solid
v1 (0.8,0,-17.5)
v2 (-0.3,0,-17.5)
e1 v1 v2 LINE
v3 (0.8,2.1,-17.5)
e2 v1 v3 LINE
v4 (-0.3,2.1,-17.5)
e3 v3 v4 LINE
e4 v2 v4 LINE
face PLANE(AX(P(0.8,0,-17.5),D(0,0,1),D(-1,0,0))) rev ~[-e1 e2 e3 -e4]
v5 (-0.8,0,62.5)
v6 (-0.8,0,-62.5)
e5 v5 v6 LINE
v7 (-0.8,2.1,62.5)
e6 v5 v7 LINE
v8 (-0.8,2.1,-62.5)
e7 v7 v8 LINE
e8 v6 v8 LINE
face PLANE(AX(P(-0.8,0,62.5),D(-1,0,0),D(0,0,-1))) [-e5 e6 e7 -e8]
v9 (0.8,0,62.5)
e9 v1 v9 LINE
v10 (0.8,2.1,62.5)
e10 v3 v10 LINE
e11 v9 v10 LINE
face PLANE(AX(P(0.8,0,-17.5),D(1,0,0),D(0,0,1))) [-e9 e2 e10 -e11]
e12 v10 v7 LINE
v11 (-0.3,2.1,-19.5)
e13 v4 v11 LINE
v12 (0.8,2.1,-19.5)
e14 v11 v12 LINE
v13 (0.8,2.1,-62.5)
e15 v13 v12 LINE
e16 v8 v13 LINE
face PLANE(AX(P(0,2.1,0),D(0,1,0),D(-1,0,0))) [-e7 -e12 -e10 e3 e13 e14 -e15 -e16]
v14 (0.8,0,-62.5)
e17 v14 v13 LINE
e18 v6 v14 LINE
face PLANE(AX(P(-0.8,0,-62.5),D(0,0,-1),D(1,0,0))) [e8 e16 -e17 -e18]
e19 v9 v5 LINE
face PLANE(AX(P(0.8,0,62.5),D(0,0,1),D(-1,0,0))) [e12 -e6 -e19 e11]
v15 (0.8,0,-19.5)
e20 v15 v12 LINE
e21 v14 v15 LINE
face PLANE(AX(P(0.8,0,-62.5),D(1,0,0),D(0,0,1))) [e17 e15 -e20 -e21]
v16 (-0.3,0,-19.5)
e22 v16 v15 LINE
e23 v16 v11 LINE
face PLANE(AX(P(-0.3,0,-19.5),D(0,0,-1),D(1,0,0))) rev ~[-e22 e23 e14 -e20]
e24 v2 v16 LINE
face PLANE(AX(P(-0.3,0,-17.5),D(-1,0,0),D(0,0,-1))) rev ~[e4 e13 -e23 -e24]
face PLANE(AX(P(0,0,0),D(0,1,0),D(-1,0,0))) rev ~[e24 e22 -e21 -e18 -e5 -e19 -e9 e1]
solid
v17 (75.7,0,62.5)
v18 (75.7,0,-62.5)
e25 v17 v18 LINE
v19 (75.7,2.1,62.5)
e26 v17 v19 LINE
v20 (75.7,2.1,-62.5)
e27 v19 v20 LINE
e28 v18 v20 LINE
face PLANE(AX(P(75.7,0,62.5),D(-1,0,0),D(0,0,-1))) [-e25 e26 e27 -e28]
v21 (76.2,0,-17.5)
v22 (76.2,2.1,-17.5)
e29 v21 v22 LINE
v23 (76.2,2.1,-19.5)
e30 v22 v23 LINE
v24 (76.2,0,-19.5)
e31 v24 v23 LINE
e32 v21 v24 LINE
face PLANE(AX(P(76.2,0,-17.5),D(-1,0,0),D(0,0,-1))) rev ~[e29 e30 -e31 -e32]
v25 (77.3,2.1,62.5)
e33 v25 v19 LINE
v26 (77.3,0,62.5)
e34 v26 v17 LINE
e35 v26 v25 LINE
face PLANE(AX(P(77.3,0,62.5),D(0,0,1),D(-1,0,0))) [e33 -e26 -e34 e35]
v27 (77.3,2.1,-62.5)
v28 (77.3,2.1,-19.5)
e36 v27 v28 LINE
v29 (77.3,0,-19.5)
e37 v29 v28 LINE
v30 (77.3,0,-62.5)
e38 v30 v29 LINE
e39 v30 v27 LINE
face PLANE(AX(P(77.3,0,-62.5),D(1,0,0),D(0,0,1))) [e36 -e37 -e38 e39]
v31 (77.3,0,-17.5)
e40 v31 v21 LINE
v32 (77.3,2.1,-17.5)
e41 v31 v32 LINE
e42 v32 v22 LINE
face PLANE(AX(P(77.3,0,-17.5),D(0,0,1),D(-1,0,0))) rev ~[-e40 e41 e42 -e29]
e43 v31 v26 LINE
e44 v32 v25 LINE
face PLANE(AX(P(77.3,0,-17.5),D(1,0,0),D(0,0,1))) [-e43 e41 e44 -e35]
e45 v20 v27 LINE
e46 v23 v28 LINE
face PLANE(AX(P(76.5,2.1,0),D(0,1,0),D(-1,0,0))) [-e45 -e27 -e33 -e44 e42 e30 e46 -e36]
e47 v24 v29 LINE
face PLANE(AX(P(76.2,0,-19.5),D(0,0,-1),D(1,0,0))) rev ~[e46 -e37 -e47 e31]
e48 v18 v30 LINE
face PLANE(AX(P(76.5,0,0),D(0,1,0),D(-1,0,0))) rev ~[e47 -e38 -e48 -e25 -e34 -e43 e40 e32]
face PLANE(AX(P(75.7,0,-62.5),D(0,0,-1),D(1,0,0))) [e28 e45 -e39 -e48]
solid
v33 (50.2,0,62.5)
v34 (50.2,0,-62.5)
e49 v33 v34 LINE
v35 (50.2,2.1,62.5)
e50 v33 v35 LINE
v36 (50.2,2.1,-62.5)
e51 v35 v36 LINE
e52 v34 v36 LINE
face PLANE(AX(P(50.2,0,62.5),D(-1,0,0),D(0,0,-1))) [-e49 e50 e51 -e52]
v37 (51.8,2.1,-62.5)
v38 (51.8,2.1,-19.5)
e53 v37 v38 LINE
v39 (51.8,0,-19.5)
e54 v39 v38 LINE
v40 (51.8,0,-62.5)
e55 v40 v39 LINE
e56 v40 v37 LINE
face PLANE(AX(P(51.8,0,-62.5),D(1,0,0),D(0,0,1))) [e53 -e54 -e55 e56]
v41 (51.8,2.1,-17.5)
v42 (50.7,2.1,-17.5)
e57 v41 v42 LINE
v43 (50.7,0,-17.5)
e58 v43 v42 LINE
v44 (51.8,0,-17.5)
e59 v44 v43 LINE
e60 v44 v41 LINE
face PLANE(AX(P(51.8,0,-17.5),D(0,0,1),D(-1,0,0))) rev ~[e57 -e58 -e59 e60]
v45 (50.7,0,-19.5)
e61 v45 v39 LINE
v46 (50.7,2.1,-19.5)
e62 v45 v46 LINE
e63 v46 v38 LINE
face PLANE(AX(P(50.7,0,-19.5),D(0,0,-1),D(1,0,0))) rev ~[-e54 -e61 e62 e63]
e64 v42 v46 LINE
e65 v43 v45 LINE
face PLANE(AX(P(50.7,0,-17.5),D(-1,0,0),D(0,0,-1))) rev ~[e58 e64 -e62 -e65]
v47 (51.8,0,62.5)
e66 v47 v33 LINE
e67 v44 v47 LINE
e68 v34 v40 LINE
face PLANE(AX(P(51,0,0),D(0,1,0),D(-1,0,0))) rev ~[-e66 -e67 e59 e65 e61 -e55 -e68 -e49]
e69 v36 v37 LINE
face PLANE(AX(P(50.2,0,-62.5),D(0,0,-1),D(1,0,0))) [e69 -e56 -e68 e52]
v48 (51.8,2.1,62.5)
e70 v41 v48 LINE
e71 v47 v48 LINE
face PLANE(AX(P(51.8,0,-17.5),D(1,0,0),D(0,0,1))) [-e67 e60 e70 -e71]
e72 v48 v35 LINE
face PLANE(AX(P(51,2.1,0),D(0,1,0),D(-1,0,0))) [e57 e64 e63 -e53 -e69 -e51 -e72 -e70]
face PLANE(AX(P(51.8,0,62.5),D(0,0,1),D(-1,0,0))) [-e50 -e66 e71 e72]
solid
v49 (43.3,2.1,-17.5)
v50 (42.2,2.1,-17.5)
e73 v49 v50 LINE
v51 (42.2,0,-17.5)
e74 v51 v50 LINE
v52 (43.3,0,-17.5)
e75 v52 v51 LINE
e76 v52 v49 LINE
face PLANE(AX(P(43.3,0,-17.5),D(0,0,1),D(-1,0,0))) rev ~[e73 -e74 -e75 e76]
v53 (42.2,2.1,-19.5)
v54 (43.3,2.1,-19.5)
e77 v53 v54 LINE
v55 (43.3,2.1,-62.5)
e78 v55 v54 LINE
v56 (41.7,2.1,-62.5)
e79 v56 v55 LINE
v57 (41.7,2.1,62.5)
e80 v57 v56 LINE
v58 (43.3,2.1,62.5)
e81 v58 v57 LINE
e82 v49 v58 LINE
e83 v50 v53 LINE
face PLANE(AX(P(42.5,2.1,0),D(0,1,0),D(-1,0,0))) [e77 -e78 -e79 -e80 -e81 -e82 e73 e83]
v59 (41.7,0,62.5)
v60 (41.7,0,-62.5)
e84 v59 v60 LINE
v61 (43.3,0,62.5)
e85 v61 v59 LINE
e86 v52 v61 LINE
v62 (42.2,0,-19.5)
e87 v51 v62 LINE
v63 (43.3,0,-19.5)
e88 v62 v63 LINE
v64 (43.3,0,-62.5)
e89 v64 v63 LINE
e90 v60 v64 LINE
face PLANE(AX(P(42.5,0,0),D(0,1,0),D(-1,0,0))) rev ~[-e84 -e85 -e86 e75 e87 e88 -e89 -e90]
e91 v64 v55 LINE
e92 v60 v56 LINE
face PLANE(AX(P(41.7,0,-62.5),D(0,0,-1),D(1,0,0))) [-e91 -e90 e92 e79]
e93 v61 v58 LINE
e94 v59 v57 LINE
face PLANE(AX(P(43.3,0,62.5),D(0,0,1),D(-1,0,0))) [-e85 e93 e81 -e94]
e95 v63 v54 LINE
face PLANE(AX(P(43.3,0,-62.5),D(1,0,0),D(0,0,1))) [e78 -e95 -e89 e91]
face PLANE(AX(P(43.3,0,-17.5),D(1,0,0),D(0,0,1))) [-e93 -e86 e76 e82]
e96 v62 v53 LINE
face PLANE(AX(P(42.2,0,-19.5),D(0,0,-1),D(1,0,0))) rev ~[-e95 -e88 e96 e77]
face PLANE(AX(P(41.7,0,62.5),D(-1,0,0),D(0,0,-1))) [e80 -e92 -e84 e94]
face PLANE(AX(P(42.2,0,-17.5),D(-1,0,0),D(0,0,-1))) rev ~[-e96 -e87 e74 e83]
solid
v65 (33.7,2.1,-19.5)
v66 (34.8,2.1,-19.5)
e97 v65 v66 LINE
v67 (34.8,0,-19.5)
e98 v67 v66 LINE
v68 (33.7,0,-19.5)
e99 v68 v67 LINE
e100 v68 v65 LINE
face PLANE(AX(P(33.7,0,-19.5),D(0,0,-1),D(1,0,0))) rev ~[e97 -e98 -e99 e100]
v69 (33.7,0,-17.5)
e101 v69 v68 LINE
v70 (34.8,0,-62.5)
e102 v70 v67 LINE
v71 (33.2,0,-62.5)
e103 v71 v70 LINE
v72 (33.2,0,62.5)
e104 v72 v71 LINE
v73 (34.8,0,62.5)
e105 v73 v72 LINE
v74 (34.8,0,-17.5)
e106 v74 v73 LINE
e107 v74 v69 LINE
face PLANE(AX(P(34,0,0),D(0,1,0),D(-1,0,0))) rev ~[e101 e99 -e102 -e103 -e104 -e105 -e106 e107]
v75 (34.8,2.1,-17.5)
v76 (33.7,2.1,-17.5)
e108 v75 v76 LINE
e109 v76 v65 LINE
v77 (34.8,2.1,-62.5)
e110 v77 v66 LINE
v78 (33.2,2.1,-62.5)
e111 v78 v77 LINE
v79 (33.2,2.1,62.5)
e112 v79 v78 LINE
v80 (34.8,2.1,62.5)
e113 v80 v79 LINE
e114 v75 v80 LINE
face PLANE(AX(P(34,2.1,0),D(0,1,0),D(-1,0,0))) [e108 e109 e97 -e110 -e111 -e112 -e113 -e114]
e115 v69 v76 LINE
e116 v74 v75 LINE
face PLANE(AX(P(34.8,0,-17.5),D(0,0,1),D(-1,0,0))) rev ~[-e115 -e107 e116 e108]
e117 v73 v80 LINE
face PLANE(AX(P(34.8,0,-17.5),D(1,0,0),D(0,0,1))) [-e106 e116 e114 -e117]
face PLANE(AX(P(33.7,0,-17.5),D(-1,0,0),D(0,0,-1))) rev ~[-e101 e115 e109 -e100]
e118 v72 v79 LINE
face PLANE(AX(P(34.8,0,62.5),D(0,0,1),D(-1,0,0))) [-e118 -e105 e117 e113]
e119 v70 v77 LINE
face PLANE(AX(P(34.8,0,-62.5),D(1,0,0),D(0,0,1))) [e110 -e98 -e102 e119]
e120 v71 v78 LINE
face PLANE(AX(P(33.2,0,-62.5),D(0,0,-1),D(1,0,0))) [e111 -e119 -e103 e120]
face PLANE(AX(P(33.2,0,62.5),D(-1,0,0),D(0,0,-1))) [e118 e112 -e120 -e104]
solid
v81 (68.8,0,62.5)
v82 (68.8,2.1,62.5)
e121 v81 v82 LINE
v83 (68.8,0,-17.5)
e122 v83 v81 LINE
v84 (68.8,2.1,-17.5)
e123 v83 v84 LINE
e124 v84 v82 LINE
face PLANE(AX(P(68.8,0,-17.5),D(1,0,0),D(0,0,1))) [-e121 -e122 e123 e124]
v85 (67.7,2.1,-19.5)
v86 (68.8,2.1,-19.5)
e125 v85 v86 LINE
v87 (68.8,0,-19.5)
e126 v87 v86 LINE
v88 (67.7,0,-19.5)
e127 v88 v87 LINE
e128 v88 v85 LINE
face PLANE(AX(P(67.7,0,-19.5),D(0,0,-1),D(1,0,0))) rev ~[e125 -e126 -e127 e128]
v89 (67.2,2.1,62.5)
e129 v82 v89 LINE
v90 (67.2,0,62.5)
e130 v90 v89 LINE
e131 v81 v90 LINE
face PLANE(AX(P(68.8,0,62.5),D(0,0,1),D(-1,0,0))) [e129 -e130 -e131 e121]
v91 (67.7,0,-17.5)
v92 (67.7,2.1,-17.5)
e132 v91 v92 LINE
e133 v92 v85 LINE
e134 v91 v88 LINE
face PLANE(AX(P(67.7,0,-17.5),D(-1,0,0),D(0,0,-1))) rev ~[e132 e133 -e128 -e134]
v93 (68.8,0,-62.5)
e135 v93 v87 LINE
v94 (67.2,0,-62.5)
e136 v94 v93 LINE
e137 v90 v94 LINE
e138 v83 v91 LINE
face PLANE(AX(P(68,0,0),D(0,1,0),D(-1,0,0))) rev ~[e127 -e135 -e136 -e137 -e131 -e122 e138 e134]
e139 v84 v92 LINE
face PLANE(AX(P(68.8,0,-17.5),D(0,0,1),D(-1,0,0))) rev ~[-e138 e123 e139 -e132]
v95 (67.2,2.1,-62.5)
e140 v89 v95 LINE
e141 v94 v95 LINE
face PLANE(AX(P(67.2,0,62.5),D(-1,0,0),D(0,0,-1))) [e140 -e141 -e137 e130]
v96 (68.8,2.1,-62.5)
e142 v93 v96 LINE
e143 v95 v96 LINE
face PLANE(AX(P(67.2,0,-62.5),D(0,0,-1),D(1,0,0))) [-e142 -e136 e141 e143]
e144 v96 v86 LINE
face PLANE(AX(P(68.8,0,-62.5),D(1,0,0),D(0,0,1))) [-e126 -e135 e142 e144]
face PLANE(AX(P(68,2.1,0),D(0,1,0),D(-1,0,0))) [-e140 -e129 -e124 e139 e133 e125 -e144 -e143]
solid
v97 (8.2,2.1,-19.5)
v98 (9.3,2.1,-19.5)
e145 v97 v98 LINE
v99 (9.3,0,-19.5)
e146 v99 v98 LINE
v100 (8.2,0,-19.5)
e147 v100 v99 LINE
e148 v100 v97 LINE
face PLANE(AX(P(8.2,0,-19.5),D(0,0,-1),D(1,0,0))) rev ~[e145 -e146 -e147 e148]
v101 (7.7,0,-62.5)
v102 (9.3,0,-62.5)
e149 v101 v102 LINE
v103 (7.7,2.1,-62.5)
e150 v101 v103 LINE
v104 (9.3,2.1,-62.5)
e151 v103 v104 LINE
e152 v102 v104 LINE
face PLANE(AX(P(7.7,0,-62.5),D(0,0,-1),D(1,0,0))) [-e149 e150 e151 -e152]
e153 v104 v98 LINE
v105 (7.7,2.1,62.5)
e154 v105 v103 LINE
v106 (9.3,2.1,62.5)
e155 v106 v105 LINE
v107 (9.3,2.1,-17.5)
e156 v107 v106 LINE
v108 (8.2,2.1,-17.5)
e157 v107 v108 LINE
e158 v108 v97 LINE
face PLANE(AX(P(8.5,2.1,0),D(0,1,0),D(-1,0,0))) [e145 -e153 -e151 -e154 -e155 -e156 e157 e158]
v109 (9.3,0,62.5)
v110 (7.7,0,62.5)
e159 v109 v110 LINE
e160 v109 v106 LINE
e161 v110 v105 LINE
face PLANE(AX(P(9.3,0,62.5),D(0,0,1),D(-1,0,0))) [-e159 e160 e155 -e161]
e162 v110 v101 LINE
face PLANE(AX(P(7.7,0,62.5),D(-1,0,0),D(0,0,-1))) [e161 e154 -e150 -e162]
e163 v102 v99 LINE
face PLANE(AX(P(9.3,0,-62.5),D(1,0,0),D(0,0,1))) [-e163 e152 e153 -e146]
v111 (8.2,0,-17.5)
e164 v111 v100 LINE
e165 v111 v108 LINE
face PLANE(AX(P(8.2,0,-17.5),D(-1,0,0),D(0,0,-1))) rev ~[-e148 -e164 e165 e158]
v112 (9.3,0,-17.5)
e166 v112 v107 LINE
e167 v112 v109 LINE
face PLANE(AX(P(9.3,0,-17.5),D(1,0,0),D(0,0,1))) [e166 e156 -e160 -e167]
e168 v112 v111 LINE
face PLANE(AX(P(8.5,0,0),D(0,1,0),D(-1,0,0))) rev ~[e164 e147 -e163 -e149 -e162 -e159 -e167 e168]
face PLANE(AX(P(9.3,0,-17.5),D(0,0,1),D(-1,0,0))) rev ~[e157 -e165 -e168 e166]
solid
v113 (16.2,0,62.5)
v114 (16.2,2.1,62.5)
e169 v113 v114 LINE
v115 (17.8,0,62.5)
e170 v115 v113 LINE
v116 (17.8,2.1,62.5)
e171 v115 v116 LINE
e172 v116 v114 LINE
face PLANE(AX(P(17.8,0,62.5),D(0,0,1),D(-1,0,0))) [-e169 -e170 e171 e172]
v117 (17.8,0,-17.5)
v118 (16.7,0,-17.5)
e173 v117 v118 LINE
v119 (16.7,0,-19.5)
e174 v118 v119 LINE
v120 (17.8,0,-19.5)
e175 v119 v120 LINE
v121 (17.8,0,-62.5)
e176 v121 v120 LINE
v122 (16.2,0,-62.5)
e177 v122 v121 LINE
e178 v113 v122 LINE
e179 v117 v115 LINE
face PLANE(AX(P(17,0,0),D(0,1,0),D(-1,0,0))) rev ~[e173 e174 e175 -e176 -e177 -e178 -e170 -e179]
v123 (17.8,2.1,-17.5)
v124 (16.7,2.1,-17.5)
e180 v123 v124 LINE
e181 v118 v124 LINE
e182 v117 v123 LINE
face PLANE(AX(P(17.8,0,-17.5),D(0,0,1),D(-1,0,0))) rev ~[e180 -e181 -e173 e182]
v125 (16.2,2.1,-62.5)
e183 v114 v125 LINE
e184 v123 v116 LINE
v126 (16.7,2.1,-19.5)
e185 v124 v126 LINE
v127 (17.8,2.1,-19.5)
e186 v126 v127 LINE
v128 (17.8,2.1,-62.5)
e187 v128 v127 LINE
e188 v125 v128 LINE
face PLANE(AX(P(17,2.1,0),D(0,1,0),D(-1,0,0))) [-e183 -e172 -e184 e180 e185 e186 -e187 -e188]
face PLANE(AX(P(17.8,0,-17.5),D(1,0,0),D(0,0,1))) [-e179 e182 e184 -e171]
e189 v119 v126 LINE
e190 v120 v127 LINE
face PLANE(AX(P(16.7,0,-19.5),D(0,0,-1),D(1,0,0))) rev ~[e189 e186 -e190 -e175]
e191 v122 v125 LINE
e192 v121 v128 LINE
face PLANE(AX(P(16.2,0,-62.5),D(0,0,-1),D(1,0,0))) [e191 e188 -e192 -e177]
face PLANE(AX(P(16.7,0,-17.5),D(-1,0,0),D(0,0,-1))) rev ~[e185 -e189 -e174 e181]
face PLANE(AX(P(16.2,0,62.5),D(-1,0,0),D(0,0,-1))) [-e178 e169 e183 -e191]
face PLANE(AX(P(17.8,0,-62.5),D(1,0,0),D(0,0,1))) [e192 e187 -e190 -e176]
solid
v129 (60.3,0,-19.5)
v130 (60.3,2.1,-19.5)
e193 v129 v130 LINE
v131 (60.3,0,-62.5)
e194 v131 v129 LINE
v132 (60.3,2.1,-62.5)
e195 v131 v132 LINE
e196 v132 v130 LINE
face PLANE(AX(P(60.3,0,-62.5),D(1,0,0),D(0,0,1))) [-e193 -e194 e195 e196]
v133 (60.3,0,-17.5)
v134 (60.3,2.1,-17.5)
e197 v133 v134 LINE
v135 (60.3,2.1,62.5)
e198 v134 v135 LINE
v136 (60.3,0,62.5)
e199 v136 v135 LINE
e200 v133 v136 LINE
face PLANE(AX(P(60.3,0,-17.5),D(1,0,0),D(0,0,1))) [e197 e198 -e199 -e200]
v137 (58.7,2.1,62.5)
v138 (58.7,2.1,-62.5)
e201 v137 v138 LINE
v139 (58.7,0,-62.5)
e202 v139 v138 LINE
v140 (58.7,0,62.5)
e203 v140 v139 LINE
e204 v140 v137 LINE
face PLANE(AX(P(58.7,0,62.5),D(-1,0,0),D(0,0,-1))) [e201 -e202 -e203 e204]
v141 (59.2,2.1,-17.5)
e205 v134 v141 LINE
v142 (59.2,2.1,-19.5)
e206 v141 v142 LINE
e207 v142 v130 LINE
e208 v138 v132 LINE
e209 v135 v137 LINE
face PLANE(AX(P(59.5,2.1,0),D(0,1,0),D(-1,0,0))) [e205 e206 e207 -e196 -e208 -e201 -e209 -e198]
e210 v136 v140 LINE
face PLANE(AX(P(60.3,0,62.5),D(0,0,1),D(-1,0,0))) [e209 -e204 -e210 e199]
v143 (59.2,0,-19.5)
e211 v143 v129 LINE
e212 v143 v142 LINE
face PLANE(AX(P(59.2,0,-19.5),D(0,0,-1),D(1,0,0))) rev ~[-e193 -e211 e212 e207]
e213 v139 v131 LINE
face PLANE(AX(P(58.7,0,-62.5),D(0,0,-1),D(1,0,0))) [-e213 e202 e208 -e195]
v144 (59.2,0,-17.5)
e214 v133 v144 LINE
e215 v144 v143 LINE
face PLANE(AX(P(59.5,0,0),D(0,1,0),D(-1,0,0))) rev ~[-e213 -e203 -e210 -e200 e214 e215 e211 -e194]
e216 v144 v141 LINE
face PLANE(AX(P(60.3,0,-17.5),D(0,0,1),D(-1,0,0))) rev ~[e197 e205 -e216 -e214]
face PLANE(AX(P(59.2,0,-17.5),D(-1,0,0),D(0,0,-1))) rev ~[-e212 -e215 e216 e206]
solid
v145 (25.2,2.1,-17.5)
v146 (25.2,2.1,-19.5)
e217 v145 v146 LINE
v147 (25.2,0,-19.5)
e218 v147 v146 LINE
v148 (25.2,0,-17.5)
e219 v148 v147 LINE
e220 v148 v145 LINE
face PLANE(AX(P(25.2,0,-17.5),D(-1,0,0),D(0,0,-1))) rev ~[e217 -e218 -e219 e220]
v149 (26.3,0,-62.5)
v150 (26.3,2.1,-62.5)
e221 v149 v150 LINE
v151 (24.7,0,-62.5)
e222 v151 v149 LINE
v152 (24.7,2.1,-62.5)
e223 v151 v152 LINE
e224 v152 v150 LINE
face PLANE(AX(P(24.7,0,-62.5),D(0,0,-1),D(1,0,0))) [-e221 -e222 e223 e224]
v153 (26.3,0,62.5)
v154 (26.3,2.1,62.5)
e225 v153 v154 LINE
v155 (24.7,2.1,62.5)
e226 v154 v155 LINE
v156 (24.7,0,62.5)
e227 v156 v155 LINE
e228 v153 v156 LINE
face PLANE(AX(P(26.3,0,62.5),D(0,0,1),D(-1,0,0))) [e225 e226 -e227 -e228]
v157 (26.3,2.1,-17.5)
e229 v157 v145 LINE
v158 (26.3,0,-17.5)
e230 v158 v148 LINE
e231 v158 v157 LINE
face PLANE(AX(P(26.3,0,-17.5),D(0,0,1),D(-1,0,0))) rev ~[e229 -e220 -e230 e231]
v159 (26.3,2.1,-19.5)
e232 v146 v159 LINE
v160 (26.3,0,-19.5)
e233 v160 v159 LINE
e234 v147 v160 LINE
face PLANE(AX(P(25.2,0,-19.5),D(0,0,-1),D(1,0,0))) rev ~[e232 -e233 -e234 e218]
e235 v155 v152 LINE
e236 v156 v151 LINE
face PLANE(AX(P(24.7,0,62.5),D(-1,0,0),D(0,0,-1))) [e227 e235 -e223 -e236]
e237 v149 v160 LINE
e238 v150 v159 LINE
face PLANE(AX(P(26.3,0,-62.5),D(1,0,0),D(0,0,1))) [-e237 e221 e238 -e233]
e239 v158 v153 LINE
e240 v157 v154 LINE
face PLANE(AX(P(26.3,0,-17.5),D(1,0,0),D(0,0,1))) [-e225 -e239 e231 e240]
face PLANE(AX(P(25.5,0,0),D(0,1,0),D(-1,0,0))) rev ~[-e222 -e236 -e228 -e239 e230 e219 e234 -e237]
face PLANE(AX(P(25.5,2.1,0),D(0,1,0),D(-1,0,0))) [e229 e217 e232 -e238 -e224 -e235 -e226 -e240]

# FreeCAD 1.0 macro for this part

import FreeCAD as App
import Part
import Sketcher
from FreeCAD import Vector


def add_polygon(sketch, points):
    """Adds a closed chain of lines whose ends are joined by coincident constraints."""
    first, n = sketch.GeometryCount, len(points)
    for a, b in zip(points, points[1:] + points[:1]):
        sketch.addGeometry(Part.LineSegment(App.Vector(*a, 0), App.Vector(*b, 0)), False)
    for i in range(n):
        sketch.addConstraint(Sketcher.Constraint("Coincident", first + i, 2, first + (i + 1) % n, 1))

doc = App.newDocument("Part")
params = doc.addObject("Spreadsheet::Sheet", "Params")
for row, (alias, value) in enumerate([
    ("sketch1_height", "125 mm"),
    ("sketch1_height2", "80 mm"),
    ("sketch1_height3", "2 mm"),
    ("sketch1_width", "1.6 mm"),
    ("pad1_length", "2.1 mm"),
    ("linearpattern_pitch", "8.5 mm"),
], start=1):
    params.set(f"A{row}", alias)
    params.set(f"B{row}", "=" + value)
    params.setAlias(f"B{row}", alias)

body = doc.addObject("PartDesign::Body", "Body")
body.AllowCompound = True

# Sketch on XZ plane
sketch1 = body.newObject("Sketcher::SketchObject", "Sketch")
sketch1.AttachmentSupport = (doc.getObject("XZ_Plane"), [""])
sketch1.MapMode = "FlatFace"
add_polygon(sketch1, [(0.8, -62.5), (-0.8, -62.5), (-0.8, 62.5), (0.8, 62.5), (0.8, -17.5), (-0.3, -17.5), (-0.3, -19.5), (0.8, -19.5)])  # lines 0-7
sketch1.addConstraint(Sketcher.Constraint("Horizontal", 0))
sketch1.addConstraint(Sketcher.Constraint("Vertical", 1))
sketch1.addConstraint(Sketcher.Constraint("Horizontal", 2))
sketch1.addConstraint(Sketcher.Constraint("Vertical", 3))
sketch1.addConstraint(Sketcher.Constraint("Horizontal", 4))
sketch1.addConstraint(Sketcher.Constraint("Vertical", 5))
sketch1.addConstraint(Sketcher.Constraint("Horizontal", 6))
sketch1.addConstraint(Sketcher.Constraint("Vertical", 7))
sketch1.addConstraint(Sketcher.Constraint("Symmetric", 0, 2, 2, 2, -1, 1))
sketch1.addConstraint(Sketcher.Constraint("Vertical", 3, 2, 6, 2))
sketch1.addConstraint(Sketcher.Constraint("DistanceY", 1, 1, 1, 2, 125.0))
sketch1.addConstraint(Sketcher.Constraint("DistanceY", 3, 2, 3, 1, 80.0))
sketch1.addConstraint(Sketcher.Constraint("DistanceY", 5, 2, 5, 1, 2.0))
sketch1.addConstraint(Sketcher.Constraint("DistanceX", 0, 2, 0, 1, 1.6))
sketch1.addConstraint(Sketcher.Constraint("DistanceX", 0, 2, 4, 2, 0.5))
sketch1.setExpression("Constraints[18]", "Params.sketch1_height")
sketch1.setExpression("Constraints[19]", "Params.sketch1_height2")
sketch1.setExpression("Constraints[20]", "Params.sketch1_height3")
sketch1.setExpression("Constraints[21]", "Params.sketch1_width")
pad1 = body.newObject("PartDesign::Pad", "Pad")
pad1.Profile = sketch1
pad1.setExpression("Length", "Params.pad1_length")
pad1.Reversed = True
doc.recompute()

linearpattern = body.newObject("PartDesign::LinearPattern", "LinearPattern")
linearpattern.Originals = [pad1]
linearpattern.Direction = (doc.getObject("X_Axis"), [""])
linearpattern.Mode = "offset"
linearpattern.setExpression("Offset", "Params.linearpattern_pitch")
linearpattern.Occurrences = 10
body.Tip = linearpattern

doc.recompute()
